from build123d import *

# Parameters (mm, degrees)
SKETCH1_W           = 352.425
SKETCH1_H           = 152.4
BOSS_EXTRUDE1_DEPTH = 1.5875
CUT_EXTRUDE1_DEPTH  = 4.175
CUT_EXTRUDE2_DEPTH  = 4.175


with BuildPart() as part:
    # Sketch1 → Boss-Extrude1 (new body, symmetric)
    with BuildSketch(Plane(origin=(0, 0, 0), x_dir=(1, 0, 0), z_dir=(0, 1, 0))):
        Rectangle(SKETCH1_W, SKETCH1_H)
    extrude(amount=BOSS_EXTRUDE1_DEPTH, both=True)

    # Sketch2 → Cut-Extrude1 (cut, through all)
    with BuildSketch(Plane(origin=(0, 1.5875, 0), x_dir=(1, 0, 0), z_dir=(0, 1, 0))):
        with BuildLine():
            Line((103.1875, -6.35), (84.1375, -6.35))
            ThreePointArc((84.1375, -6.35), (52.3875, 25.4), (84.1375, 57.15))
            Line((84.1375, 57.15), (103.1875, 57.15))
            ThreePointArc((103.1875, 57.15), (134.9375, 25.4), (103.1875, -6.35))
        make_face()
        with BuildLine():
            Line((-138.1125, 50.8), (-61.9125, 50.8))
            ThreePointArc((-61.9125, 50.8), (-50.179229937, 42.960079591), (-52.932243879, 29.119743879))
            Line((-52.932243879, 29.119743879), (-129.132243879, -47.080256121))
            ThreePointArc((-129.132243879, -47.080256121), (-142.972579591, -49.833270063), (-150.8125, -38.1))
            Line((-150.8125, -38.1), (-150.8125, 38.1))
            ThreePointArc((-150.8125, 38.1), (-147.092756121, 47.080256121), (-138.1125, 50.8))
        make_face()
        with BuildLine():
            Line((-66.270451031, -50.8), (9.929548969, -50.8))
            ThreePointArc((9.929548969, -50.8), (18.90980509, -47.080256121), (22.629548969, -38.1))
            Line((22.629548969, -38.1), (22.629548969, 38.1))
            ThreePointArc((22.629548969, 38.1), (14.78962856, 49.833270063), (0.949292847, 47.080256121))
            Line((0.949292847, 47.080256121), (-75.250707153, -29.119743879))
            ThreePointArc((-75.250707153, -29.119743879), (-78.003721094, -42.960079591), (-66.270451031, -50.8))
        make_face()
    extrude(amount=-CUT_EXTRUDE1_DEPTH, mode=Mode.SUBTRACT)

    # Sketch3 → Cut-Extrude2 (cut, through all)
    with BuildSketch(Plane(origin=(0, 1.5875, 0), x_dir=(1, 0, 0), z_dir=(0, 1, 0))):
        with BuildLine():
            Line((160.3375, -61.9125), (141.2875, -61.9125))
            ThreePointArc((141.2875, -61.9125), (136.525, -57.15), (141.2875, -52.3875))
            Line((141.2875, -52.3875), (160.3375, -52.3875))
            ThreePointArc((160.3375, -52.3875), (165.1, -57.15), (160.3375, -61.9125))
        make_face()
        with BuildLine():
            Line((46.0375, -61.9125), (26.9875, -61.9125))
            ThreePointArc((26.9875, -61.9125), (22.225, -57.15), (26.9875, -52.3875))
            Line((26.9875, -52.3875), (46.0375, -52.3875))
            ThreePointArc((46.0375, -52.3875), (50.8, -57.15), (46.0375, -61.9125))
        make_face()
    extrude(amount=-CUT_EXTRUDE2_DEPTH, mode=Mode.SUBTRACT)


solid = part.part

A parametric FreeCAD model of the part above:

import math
import FreeCAD as App
import Part
import Sketcher
Q = App.Units.Quantity

doc = App.newDocument("Part")
body = doc.addObject("PartDesign::Body", "Body")

# Sketch on XZ plane
sketch1 = doc.addObject("Sketcher::SketchObject", "Sketch")
body.addObject(sketch1)
sketch1.AttachmentSupport = (doc.XZ_Plane, [""])
sketch1.MapMode = "FlatFace"
sketch1.addGeometry([
    Part.LineSegment(App.Vector(-176, -76, 0), App.Vector(-176, 76, 0)),
    Part.LineSegment(App.Vector(-176, 76, 0), App.Vector(176, 76, 0)),
    Part.LineSegment(App.Vector(176, 76, 0), App.Vector(176, -76, 0)),
    Part.LineSegment(App.Vector(176, -76, 0), App.Vector(-176, -76, 0)),
], False)
sketch1.addConstraint([
    Sketcher.Constraint("Coincident", 0, 2, 1, 1),
    Sketcher.Constraint("Coincident", 1, 2, 2, 1),
    Sketcher.Constraint("Coincident", 2, 2, 3, 1),
    Sketcher.Constraint("Coincident", 3, 2, 0, 1),
    Sketcher.Constraint("Vertical", 0),
    Sketcher.Constraint("Horizontal", 1),
    Sketcher.Constraint("Vertical", 2),
    Sketcher.Constraint("Horizontal", 3),
    Sketcher.Constraint("Symmetric", 0, 2, 2, 2, -1, 1),
    Sketcher.Constraint("DistanceY", 0, 1, 0, 2, Q("6 in")),
    Sketcher.Constraint("DistanceX", 1, 1, 1, 2, Q("13.875 in")),
])
pad1 = doc.addObject("PartDesign::Pad", "Pad")
body.addObject(pad1)
pad1.Profile = sketch1
pad1.Length = Q("0.125 in")
pad1.Midplane = True

# Sketch on XZ plane
sketch2 = doc.addObject("Sketcher::SketchObject", "Sketch001")
body.addObject(sketch2)
sketch2.AttachmentSupport = (doc.XZ_Plane, [""])
sketch2.MapMode = "FlatFace"
sketch2.AttachmentOffset = App.Placement(App.Vector(0, 0, -0.0625 * 25.4), App.Rotation())
sketch2.addGeometry([
    Part.LineSegment(App.Vector(84, 6, 0), App.Vector(103, 6, 0)),  # 0
    Part.ArcOfCircle(Part.Circle(App.Vector(103, -25, 0), App.Vector(0, 0, 1), 32), math.radians(-90), math.radians(90)),  # 1
    Part.LineSegment(App.Vector(103, -57, 0), App.Vector(84, -57, 0)),  # 2
    Part.ArcOfCircle(Part.Circle(App.Vector(84, -25, 0), App.Vector(0, 0, 1), 32), math.radians(90), math.radians(270)),  # 3
    Part.LineSegment(App.Vector(-62, -51, 0), App.Vector(-138, -51, 0)),  # 4
    Part.ArcOfCircle(Part.Circle(App.Vector(-138, -38, 0), App.Vector(0, 0, 1), 13), math.radians(180), math.radians(270)),  # 5
    Part.LineSegment(App.Vector(-151, -38, 0), App.Vector(-151, 38, 0)),  # 6
    Part.ArcOfCircle(Part.Circle(App.Vector(-138, 38, 0), App.Vector(0, 0, 1), 13), math.radians(45), math.radians(180)),  # 7
    Part.LineSegment(App.Vector(-129, 47, 0), App.Vector(-53, -29, 0)),  # 8
    Part.ArcOfCircle(Part.Circle(App.Vector(-62, -38, 0), App.Vector(0, 0, 1), 13), math.radians(-90), math.radians(45)),  # 9
    Part.LineSegment(App.Vector(-66, 51, 0), App.Vector(10, 51, 0)),  # 10
    Part.ArcOfCircle(Part.Circle(App.Vector(10, 38, 0), App.Vector(0, 0, 1), 13), math.radians(0), math.radians(90)),  # 11
    Part.LineSegment(App.Vector(23, 38, 0), App.Vector(23, -38, 0)),  # 12
    Part.ArcOfCircle(Part.Circle(App.Vector(10, -38, 0), App.Vector(0, 0, 1), 13), math.radians(-135), math.radians(0)),  # 13
    Part.LineSegment(App.Vector(1, -47, 0), App.Vector(-75, 29, 0)),  # 14
    Part.ArcOfCircle(Part.Circle(App.Vector(-66, 38, 0), App.Vector(0, 0, 1), 13), math.radians(90), math.radians(225)),  # 15
], False)
sketch2.addConstraint([
    Sketcher.Constraint("Tangent", 0, 2, 1, 2),
    Sketcher.Constraint("Tangent", 1, 1, 2, 1),
    Sketcher.Constraint("Tangent", 2, 2, 3, 2),
    Sketcher.Constraint("Tangent", 3, 1, 0, 1),
    Sketcher.Constraint("Tangent", 4, 2, 5, 2),
    Sketcher.Constraint("Tangent", 5, 1, 6, 1),
    Sketcher.Constraint("Tangent", 6, 2, 7, 2),
    Sketcher.Constraint("Tangent", 7, 1, 8, 1),
    Sketcher.Constraint("Tangent", 8, 2, 9, 2),
    Sketcher.Constraint("Tangent", 9, 1, 4, 1),
    Sketcher.Constraint("Tangent", 10, 2, 11, 2),
    Sketcher.Constraint("Tangent", 11, 1, 12, 1),
    Sketcher.Constraint("Tangent", 12, 2, 13, 2),
    Sketcher.Constraint("Tangent", 13, 1, 14, 1),
    Sketcher.Constraint("Tangent", 14, 2, 15, 2),
    Sketcher.Constraint("Tangent", 15, 1, 10, 1),
    Sketcher.Constraint("Horizontal", 0),
    Sketcher.Constraint("Horizontal", 2),
    Sketcher.Constraint("Horizontal", 4),
    Sketcher.Constraint("Vertical", 6),
    Sketcher.Constraint("Horizontal", 10),
    Sketcher.Constraint("Vertical", 12),
    Sketcher.Constraint("Equal", 5, 7),
    Sketcher.Constraint("Equal", 7, 9),
    Sketcher.Constraint("Equal", 9, 11),
    Sketcher.Constraint("Equal", 11, 13),
    Sketcher.Constraint("Equal", 13, 15),
    Sketcher.Constraint("Parallel", 8, 14),
    Sketcher.Constraint("Horizontal", 7, 3, 11, 3),
    Sketcher.Constraint("Horizontal", 9, 3, 13, 3),
    Sketcher.Constraint("Equal", 10, 6),
    Sketcher.Constraint("Radius", 5, Q("0.5 in")),
    Sketcher.Constraint("DistanceX", 4, 2, 4, 1, Q("3 in")),
    Sketcher.Constraint("Radius", 1, Q("1.25 in")),
    Sketcher.Constraint("DistanceY", 1, 3, -1, 1, Q("1 in")),
    Sketcher.Constraint("DistanceY", 4, 2, -1, 1, Q("2 in")),
    Sketcher.Constraint("DistanceX", 0, 1, 0, 2, Q("0.75 in")),
    Sketcher.Constraint("DistanceX", 5, 3, 1, 3, Q("9.5 in")),
    Sketcher.Constraint("DistanceX", -1, 1, 1, 3, Q("4.0625 in")),
    Sketcher.Constraint("DistanceX", -1, 1, 11, 3, 9.929549),
])
pocket1 = doc.addObject("PartDesign::Pocket", "Pocket")
body.addObject(pocket1)
pocket1.Profile = sketch2
pocket1.Type = "ThroughAll"
pocket1.Reversed = True

# Sketch on XZ plane
sketch3 = doc.addObject("Sketcher::SketchObject", "Sketch002")
body.addObject(sketch3)
sketch3.AttachmentSupport = (doc.XZ_Plane, [""])
sketch3.MapMode = "FlatFace"
sketch3.AttachmentOffset = App.Placement(App.Vector(0, 0, -0.0625 * 25.4), App.Rotation())
sketch3.addGeometry([
    Part.LineSegment(App.Vector(141.3, 61.9, 0), App.Vector(160.3, 61.9, 0)),  # 0
    Part.ArcOfCircle(Part.Circle(App.Vector(160.3, 57.1, 0), App.Vector(0, 0, 1), 4.8), math.radians(-90), math.radians(90)),  # 1
    Part.LineSegment(App.Vector(160.3, 52.4, 0), App.Vector(141.3, 52.4, 0)),  # 2
    Part.ArcOfCircle(Part.Circle(App.Vector(141.3, 57.1, 0), App.Vector(0, 0, 1), 4.8), math.radians(90), math.radians(270)),  # 3
    Part.LineSegment(App.Vector(27, 61.9, 0), App.Vector(46, 61.9, 0)),  # 4
    Part.ArcOfCircle(Part.Circle(App.Vector(46, 57.1, 0), App.Vector(0, 0, 1), 4.8), math.radians(-90), math.radians(90)),  # 5
    Part.LineSegment(App.Vector(46, 52.4, 0), App.Vector(27, 52.4, 0)),  # 6
    Part.ArcOfCircle(Part.Circle(App.Vector(27, 57.1, 0), App.Vector(0, 0, 1), 4.8), math.radians(90), math.radians(270)),  # 7
], False)
sketch3.addConstraint([
    Sketcher.Constraint("Tangent", 0, 2, 1, 2),
    Sketcher.Constraint("Tangent", 1, 1, 2, 1),
    Sketcher.Constraint("Tangent", 2, 2, 3, 2),
    Sketcher.Constraint("Tangent", 3, 1, 0, 1),
    Sketcher.Constraint("Tangent", 4, 2, 5, 2),
    Sketcher.Constraint("Tangent", 5, 1, 6, 1),
    Sketcher.Constraint("Tangent", 6, 2, 7, 2),
    Sketcher.Constraint("Tangent", 7, 1, 4, 1),
    Sketcher.Constraint("Horizontal", 0),
    Sketcher.Constraint("Horizontal", 2),
    Sketcher.Constraint("Horizontal", 4),
    Sketcher.Constraint("Horizontal", 6),
    Sketcher.Constraint("Equal", 3, 5),
    Sketcher.Constraint("Horizontal", 3, 3, 5, 3),
    Sketcher.Constraint("Equal", 2, 4),
    Sketcher.Constraint("Radius", 1, Q("0.1875 in")),
    Sketcher.Constraint("DistanceX", 0, 1, 0, 2, Q("0.75 in")),
    Sketcher.Constraint("DistanceX", 5, 3, 1, 3, Q("4.5 in")),
    Sketcher.Constraint("DistanceY", -1, 1, 1, 3, Q("2.25 in")),
    Sketcher.Constraint("DistanceX", -1, 1, 1, 3, Q("6.3125 in")),
])
pocket2 = doc.addObject("PartDesign::Pocket", "Pocket001")
body.addObject(pocket2)
pocket2.Profile = sketch3
pocket2.Type = "ThroughAll"
pocket2.Reversed = True

doc.recompute()
